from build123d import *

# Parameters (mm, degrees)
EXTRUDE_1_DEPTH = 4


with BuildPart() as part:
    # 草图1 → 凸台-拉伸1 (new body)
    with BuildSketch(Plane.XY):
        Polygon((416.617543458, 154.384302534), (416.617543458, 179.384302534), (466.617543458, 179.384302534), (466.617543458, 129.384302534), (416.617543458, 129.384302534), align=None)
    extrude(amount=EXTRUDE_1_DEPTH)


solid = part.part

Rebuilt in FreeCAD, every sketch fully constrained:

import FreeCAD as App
import Part
import Sketcher
from FreeCAD import Vector
Q = App.Units.Quantity

doc = App.newDocument("Part")
body = doc.addObject("PartDesign::Body", "Body")

# Sketch on XY plane
sketch1 = body.newObject("Sketcher::SketchObject", "Sketch")
sketch1.AttachmentSupport = (doc.getObject("XY_Plane"), [""])
sketch1.MapMode = "FlatFace"
sketch1.addGeometry([
    Part.LineSegment(Vector(417, 179, 0), Vector(417, 129, 0)),
    Part.LineSegment(Vector(417, 129, 0), Vector(467, 129, 0)),
    Part.LineSegment(Vector(467, 129, 0), Vector(467, 179, 0)),
    Part.LineSegment(Vector(467, 179, 0), Vector(417, 179, 0)),
], False)
sketch1.addConstraint([
    Sketcher.Constraint("Coincident", 0, 2, 1, 1),
    Sketcher.Constraint("Coincident", 1, 2, 2, 1),
    Sketcher.Constraint("Coincident", 2, 2, 3, 1),
    Sketcher.Constraint("Coincident", 3, 2, 0, 1),
    Sketcher.Constraint("Vertical", 0),
    Sketcher.Constraint("Horizontal", 1),
    Sketcher.Constraint("Vertical", 2),
    Sketcher.Constraint("Horizontal", 3),
    Sketcher.Constraint("Equal", 3, 0),
    Sketcher.Constraint("DistanceX", 1, 1, 1, 2, Q("50 mm")),
    Sketcher.Constraint("DistanceX", -1, 1, 0, 2, Q("416.617543 mm")),
    Sketcher.Constraint("DistanceY", -1, 1, 0, 2, Q("129.384303 mm")),
])
pad1 = body.newObject("PartDesign::Pad", "Pad")
pad1.Profile = sketch1
pad1.Length = 4

doc.recompute()
